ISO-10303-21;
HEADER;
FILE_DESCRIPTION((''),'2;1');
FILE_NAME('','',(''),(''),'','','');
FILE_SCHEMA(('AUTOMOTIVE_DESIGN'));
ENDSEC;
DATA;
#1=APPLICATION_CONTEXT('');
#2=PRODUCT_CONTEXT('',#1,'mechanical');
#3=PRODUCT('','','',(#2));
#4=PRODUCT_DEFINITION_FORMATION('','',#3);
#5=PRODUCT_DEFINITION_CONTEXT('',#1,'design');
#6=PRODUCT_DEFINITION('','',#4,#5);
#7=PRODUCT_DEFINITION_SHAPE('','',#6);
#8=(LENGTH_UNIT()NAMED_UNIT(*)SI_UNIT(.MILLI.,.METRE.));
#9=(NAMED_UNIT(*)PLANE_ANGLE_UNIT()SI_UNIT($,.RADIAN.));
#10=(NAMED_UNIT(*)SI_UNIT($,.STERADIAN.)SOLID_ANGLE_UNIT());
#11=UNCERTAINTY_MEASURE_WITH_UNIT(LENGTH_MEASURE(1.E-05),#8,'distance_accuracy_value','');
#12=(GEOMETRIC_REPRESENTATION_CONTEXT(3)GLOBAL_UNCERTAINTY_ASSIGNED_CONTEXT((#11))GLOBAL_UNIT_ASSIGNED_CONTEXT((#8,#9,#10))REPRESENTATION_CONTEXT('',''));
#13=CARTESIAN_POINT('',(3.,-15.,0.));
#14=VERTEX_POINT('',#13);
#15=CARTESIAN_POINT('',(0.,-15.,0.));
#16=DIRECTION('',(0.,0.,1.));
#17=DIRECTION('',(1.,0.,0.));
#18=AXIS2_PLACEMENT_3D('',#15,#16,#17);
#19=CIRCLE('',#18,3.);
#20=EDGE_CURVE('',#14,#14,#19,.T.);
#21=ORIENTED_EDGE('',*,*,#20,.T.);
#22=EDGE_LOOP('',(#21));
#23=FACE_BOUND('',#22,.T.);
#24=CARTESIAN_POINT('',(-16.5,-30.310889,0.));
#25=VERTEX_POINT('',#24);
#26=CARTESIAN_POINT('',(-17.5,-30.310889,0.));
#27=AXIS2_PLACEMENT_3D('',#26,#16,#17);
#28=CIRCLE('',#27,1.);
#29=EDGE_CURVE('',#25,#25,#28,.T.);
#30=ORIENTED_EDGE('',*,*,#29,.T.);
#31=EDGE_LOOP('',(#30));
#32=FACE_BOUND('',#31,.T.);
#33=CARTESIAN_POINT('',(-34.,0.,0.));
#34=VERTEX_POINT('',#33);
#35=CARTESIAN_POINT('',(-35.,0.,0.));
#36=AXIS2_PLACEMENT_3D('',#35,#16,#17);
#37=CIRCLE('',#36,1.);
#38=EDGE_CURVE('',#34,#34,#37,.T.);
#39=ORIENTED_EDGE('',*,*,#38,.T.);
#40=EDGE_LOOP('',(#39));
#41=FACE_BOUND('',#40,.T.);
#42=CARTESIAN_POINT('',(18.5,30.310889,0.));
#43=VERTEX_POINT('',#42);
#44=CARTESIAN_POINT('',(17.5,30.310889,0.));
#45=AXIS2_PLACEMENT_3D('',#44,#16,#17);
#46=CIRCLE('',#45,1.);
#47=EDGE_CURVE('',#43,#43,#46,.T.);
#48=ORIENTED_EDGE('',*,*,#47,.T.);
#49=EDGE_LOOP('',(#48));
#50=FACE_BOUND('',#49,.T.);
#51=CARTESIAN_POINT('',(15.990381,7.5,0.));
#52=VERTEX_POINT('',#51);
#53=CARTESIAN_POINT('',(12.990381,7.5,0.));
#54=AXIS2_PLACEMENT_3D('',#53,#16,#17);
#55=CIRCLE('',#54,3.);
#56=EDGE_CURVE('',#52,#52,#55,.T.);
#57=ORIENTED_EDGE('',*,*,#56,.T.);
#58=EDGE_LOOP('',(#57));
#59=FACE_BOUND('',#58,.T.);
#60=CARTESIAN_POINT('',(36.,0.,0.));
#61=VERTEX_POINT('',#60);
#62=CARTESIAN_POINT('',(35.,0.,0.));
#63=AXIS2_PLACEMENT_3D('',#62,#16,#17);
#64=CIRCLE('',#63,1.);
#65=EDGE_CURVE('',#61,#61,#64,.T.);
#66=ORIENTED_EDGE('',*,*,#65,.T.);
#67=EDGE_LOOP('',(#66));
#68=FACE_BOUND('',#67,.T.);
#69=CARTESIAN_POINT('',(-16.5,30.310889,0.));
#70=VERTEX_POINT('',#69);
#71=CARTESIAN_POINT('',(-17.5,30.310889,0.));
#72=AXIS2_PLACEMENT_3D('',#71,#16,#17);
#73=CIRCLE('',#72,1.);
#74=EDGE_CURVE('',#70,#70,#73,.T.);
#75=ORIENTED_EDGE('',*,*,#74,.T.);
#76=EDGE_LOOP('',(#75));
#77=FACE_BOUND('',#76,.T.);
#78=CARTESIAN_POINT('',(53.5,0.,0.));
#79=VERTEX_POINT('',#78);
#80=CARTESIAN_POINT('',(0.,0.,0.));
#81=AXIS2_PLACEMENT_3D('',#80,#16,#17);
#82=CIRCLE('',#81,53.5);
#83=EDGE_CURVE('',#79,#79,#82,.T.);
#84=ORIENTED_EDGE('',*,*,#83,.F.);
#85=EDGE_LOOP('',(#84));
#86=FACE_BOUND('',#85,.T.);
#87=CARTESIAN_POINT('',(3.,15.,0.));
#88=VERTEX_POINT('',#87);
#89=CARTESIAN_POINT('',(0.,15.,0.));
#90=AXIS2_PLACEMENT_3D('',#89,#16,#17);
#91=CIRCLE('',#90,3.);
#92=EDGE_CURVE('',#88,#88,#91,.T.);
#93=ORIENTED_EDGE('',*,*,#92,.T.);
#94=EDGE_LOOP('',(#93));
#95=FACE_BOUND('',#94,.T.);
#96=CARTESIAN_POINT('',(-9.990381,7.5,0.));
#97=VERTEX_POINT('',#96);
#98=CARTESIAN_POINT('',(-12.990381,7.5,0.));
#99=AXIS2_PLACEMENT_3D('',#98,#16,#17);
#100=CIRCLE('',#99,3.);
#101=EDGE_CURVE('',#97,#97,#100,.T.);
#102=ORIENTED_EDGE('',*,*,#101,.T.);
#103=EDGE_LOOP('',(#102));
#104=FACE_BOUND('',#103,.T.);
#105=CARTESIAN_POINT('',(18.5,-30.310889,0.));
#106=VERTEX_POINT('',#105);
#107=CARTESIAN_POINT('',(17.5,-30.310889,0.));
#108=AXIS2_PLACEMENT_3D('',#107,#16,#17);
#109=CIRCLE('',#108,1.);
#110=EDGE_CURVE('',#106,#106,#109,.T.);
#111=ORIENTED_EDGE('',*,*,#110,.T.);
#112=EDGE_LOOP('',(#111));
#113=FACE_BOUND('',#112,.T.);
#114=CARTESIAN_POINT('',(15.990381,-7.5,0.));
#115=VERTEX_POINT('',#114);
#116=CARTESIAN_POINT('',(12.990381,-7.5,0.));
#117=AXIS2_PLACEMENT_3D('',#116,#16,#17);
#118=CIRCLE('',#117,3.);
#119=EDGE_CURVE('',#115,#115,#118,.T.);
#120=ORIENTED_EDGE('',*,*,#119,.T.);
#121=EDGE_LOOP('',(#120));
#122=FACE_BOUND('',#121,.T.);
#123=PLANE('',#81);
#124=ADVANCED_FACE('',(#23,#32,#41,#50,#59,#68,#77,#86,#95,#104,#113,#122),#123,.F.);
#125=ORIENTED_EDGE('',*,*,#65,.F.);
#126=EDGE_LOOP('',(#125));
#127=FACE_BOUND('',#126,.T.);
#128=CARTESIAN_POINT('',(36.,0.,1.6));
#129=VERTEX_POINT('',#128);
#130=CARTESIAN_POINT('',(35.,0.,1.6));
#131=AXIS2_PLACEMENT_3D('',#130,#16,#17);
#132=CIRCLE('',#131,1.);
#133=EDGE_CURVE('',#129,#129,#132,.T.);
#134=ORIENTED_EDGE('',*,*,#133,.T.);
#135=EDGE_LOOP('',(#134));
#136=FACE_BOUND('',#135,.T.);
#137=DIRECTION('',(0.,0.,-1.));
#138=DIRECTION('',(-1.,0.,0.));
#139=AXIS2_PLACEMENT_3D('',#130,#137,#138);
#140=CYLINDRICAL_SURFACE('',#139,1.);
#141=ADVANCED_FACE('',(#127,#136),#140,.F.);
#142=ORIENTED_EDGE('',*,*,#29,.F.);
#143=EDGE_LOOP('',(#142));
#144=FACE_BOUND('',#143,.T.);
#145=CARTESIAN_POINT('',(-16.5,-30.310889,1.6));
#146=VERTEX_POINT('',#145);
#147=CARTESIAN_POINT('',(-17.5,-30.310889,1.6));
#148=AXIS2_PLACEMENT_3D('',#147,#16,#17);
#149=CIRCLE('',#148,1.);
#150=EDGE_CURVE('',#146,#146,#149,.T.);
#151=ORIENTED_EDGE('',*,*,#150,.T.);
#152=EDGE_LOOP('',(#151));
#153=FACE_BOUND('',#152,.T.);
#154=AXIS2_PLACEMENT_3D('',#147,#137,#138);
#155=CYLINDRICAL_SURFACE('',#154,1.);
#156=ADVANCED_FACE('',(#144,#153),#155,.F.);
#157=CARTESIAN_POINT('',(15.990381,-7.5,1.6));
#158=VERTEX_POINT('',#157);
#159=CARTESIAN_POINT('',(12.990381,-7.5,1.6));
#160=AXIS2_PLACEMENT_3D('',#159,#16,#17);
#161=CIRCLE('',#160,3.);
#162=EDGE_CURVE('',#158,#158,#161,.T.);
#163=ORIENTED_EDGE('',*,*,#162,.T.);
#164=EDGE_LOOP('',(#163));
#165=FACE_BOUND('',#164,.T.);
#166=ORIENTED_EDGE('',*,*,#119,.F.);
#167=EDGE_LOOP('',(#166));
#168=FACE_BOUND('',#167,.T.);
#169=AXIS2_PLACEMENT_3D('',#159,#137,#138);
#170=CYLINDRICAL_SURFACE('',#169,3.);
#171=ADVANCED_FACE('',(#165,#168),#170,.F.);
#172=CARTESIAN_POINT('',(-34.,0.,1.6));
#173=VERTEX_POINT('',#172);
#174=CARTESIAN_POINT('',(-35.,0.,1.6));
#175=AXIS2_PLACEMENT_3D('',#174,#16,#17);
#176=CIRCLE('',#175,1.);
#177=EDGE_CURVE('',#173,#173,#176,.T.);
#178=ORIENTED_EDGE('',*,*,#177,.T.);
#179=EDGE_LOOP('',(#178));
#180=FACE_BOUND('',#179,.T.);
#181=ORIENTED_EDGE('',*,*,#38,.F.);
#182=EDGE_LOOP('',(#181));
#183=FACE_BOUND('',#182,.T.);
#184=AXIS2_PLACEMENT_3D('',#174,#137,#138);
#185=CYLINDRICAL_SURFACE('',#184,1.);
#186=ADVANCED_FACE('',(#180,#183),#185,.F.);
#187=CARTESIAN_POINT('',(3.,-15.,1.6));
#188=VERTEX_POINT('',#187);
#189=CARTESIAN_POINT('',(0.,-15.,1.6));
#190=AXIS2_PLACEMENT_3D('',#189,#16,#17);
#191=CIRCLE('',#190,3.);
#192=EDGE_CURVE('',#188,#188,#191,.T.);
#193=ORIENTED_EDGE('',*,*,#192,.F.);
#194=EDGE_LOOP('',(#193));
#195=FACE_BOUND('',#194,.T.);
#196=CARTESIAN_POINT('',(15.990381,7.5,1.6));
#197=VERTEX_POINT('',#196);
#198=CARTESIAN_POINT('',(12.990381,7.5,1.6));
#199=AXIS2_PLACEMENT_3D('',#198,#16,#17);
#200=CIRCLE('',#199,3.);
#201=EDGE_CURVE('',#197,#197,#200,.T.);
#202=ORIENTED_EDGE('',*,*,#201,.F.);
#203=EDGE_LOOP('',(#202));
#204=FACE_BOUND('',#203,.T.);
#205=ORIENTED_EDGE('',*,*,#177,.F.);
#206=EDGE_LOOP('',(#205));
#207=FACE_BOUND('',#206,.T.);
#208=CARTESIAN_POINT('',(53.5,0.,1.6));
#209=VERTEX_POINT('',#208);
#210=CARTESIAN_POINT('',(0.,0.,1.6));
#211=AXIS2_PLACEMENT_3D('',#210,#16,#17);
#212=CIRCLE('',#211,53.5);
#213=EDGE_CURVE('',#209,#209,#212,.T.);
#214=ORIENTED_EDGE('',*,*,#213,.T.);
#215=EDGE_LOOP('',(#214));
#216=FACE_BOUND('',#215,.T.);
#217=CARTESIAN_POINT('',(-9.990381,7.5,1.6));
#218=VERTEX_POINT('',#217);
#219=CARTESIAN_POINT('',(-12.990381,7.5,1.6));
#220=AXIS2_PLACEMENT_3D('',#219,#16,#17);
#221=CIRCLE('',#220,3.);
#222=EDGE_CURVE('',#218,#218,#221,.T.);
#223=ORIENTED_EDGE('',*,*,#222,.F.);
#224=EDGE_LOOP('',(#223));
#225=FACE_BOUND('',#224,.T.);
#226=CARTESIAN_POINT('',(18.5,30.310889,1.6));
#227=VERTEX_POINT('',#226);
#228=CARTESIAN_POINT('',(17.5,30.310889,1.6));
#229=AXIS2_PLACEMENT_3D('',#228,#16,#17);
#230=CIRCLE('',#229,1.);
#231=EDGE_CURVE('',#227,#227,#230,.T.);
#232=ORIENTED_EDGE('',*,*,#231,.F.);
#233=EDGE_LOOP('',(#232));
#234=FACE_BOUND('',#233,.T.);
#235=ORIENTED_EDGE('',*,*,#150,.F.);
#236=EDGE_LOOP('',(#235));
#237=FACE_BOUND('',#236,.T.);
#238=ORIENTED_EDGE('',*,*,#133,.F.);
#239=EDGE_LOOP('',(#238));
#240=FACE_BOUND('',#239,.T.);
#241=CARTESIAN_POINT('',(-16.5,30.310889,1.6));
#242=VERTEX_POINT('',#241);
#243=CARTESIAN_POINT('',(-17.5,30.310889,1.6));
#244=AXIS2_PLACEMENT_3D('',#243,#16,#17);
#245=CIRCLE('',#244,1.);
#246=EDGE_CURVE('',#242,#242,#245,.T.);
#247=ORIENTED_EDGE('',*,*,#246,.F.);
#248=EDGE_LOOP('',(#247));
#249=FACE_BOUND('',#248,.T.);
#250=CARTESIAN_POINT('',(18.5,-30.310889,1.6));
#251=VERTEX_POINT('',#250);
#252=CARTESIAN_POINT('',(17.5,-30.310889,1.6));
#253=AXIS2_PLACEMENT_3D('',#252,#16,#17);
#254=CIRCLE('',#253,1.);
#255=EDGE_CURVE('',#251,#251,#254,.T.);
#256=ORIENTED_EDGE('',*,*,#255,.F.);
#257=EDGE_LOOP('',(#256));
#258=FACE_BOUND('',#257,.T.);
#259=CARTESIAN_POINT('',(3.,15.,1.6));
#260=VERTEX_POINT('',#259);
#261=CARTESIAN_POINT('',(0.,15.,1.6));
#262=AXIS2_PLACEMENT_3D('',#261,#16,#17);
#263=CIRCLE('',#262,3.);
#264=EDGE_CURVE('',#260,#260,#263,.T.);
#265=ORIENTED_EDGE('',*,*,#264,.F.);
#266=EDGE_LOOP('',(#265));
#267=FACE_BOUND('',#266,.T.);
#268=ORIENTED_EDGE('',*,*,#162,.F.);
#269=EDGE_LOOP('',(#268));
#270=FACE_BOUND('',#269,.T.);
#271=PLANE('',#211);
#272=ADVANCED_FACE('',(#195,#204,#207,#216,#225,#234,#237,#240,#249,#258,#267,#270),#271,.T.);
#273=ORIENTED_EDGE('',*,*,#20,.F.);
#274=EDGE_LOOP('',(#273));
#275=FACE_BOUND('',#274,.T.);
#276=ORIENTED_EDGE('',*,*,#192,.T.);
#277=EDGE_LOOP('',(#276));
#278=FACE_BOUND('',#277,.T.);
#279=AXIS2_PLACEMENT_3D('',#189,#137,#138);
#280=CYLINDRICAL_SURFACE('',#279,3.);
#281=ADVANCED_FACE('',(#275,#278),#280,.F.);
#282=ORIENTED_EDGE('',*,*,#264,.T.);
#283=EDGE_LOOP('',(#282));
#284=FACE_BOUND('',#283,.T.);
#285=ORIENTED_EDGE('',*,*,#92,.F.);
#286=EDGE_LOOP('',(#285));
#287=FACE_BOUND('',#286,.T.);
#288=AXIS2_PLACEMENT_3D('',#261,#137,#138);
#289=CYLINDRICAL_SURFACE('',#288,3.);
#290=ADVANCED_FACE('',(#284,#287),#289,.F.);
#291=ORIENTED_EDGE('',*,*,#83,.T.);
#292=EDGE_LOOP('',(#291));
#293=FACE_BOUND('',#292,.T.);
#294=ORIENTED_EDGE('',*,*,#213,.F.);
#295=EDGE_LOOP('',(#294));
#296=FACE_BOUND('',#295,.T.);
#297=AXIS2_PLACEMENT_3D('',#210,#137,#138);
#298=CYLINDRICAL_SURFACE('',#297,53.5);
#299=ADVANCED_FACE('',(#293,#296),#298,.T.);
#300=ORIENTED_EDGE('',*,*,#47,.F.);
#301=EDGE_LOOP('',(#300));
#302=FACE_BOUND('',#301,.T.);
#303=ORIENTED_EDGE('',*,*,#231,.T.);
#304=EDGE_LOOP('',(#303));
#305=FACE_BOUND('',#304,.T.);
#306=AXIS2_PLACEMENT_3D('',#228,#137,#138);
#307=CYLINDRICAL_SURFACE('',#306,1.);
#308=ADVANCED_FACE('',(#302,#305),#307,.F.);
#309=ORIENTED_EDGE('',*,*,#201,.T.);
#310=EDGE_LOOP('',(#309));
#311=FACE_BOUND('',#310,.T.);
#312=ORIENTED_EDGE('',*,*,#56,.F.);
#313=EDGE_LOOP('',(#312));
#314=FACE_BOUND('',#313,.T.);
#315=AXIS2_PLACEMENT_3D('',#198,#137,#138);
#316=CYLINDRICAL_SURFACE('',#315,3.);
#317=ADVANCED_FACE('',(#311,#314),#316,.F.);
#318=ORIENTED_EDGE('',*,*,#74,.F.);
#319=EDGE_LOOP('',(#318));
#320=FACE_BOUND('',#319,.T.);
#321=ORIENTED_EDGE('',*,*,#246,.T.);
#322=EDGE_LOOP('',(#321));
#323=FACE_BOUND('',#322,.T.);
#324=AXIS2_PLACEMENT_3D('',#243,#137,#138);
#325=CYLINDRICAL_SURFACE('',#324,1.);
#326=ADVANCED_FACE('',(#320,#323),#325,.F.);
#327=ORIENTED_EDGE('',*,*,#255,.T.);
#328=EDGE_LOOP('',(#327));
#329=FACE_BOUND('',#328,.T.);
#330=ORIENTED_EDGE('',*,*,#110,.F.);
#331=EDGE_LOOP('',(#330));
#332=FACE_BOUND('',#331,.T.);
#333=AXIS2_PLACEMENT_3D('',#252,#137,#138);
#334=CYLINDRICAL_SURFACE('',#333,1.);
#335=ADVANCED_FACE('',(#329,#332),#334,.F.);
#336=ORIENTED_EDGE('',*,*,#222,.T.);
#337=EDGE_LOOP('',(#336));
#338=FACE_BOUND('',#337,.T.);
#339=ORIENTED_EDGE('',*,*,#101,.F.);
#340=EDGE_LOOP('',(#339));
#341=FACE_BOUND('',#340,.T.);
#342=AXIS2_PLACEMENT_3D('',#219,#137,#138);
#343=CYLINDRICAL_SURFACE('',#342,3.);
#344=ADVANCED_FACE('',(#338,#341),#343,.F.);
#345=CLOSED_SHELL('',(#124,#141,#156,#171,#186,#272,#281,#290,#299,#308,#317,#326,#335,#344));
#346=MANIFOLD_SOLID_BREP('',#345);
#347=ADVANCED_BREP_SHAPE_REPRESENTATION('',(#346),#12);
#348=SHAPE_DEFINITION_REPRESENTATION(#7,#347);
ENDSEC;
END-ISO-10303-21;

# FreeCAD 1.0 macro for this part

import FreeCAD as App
import Part
import Sketcher

V = App.Vector
Q = App.Units.Quantity

doc = App.newDocument("Part")
params = doc.addObject("Spreadsheet::Sheet", "Params")
for row, (alias, value) in enumerate([
    ("sketch1_diameter", "107 mm"),
    ("sketch1_diameter2", "2 mm"),
    ("sketch1_diameter3", "6 mm"),
    ("pad1_length", "1.6 mm"),
], start=1):
    params.set(f"A{row}", alias)
    params.set(f"B{row}", "=" + value)
    params.setAlias(f"B{row}", alias)

body = doc.addObject("PartDesign::Body", "Body")

# Sketch on XY plane
sketch1 = body.newObject("Sketcher::SketchObject", "Sketch")
sketch1.AttachmentSupport = (doc.getObject("XY_Plane"), [""])
sketch1.MapMode = "FlatFace"
sketch1.addGeometry(Part.Circle(V(0, 0, 0), V(0, 0, 1), 53.5), False)
sketch1.addGeometry(Part.Circle(V(-17.5, -30.3, 0), V(0, 0, 1), 1), False)
sketch1.addGeometry(Part.Circle(V(17.5, -30.3, 0), V(0, 0, 1), 1), False)
sketch1.addGeometry(Part.Circle(V(0, -15, 0), V(0, 0, 1), 3), False)
sketch1.addGeometry(Part.Circle(V(13, -7.5, 0), V(0, 0, 1), 3), False)
sketch1.addGeometry(Part.Circle(V(-35, 0, 0), V(0, 0, 1), 1), False)
sketch1.addGeometry(Part.Circle(V(-13, 7.5, 0), V(0, 0, 1), 3), False)
sketch1.addGeometry(Part.Circle(V(-17.5, 30.3, 0), V(0, 0, 1), 1), False)
sketch1.addGeometry(Part.Circle(V(13, 7.5, 0), V(0, 0, 1), 3), False)
sketch1.addGeometry(Part.Circle(V(0, 15, 0), V(0, 0, 1), 3), False)
sketch1.addGeometry(Part.Circle(V(35, 0, 0), V(0, 0, 1), 1), False)
sketch1.addGeometry(Part.Circle(V(17.5, 30.3, 0), V(0, 0, 1), 1), False)
sketch1.addConstraint(Sketcher.Constraint("Coincident", 0, 3, -1, 1))
sketch1.addConstraint(Sketcher.Constraint("Equal", 1, 2))
sketch1.addConstraint(Sketcher.Constraint("Equal", 3, 4))
sketch1.addConstraint(Sketcher.Constraint("Equal", 2, 5))
sketch1.addConstraint(Sketcher.Constraint("Equal", 4, 6))
sketch1.addConstraint(Sketcher.Constraint("Equal", 5, 7))
sketch1.addConstraint(Sketcher.Constraint("Equal", 6, 8))
sketch1.addConstraint(Sketcher.Constraint("Equal", 8, 9))
sketch1.addConstraint(Sketcher.Constraint("Equal", 7, 10))
sketch1.addConstraint(Sketcher.Constraint("Equal", 10, 11))
sketch1.addConstraint(Sketcher.Constraint("Symmetric", 4, 3, 6, 3, -1, 1))
sketch1.addConstraint(Sketcher.Constraint("Symmetric", 2, 3, 7, 3, -1, 1))
sketch1.addConstraint(Sketcher.Constraint("Symmetric", 3, 3, 9, 3, -1, 1))
sketch1.addConstraint(Sketcher.Constraint("Symmetric", 5, 3, 10, 3, -1, 1))
sketch1.addConstraint(Sketcher.Constraint("Symmetric", 1, 3, 11, 3, -1, 1))
sketch1.addConstraint(Sketcher.Constraint("Symmetric", 1, 3, 2, 3, -2))
sketch1.addConstraint(Sketcher.Constraint("Symmetric", 6, 3, 8, 3, -2))
sketch1.addConstraint(Sketcher.Constraint("PointOnObject", 3, 3, -2))
sketch1.addConstraint(Sketcher.Constraint("PointOnObject", 5, 3, -1))
sketch1.addConstraint(Sketcher.Constraint("Diameter", 0, Q("107 mm")))
sketch1.addConstraint(Sketcher.Constraint("Diameter", 1, Q("2 mm")))
sketch1.addConstraint(Sketcher.Constraint("Diameter", 3, Q("6 mm")))
sketch1.addConstraint(Sketcher.Constraint("DistanceY", 3, 3, -1, 1, Q("15 mm")))
sketch1.addConstraint(Sketcher.Constraint("DistanceX", 5, 3, -1, 1, Q("35 mm")))
sketch1.addConstraint(Sketcher.Constraint("DistanceX", 1, 3, 2, 3, Q("35 mm")))
sketch1.addConstraint(Sketcher.Constraint("DistanceY", 4, 3, 6, 3, Q("15 mm")))
sketch1.addConstraint(Sketcher.Constraint("DistanceY", 1, 3, -1, 1, Q("30.310889 mm")))
sketch1.addConstraint(Sketcher.Constraint("DistanceX", -1, 1, 4, 3, Q("12.990381 mm")))
sketch1.setExpression("Constraints[19]", "Params.sketch1_diameter")
sketch1.setExpression("Constraints[20]", "Params.sketch1_diameter2")
sketch1.setExpression("Constraints[21]", "Params.sketch1_diameter3")
pad1 = body.newObject("PartDesign::Pad", "Pad")
pad1.Profile = sketch1
pad1.setExpression("Length", "Params.pad1_length")

doc.recompute()
